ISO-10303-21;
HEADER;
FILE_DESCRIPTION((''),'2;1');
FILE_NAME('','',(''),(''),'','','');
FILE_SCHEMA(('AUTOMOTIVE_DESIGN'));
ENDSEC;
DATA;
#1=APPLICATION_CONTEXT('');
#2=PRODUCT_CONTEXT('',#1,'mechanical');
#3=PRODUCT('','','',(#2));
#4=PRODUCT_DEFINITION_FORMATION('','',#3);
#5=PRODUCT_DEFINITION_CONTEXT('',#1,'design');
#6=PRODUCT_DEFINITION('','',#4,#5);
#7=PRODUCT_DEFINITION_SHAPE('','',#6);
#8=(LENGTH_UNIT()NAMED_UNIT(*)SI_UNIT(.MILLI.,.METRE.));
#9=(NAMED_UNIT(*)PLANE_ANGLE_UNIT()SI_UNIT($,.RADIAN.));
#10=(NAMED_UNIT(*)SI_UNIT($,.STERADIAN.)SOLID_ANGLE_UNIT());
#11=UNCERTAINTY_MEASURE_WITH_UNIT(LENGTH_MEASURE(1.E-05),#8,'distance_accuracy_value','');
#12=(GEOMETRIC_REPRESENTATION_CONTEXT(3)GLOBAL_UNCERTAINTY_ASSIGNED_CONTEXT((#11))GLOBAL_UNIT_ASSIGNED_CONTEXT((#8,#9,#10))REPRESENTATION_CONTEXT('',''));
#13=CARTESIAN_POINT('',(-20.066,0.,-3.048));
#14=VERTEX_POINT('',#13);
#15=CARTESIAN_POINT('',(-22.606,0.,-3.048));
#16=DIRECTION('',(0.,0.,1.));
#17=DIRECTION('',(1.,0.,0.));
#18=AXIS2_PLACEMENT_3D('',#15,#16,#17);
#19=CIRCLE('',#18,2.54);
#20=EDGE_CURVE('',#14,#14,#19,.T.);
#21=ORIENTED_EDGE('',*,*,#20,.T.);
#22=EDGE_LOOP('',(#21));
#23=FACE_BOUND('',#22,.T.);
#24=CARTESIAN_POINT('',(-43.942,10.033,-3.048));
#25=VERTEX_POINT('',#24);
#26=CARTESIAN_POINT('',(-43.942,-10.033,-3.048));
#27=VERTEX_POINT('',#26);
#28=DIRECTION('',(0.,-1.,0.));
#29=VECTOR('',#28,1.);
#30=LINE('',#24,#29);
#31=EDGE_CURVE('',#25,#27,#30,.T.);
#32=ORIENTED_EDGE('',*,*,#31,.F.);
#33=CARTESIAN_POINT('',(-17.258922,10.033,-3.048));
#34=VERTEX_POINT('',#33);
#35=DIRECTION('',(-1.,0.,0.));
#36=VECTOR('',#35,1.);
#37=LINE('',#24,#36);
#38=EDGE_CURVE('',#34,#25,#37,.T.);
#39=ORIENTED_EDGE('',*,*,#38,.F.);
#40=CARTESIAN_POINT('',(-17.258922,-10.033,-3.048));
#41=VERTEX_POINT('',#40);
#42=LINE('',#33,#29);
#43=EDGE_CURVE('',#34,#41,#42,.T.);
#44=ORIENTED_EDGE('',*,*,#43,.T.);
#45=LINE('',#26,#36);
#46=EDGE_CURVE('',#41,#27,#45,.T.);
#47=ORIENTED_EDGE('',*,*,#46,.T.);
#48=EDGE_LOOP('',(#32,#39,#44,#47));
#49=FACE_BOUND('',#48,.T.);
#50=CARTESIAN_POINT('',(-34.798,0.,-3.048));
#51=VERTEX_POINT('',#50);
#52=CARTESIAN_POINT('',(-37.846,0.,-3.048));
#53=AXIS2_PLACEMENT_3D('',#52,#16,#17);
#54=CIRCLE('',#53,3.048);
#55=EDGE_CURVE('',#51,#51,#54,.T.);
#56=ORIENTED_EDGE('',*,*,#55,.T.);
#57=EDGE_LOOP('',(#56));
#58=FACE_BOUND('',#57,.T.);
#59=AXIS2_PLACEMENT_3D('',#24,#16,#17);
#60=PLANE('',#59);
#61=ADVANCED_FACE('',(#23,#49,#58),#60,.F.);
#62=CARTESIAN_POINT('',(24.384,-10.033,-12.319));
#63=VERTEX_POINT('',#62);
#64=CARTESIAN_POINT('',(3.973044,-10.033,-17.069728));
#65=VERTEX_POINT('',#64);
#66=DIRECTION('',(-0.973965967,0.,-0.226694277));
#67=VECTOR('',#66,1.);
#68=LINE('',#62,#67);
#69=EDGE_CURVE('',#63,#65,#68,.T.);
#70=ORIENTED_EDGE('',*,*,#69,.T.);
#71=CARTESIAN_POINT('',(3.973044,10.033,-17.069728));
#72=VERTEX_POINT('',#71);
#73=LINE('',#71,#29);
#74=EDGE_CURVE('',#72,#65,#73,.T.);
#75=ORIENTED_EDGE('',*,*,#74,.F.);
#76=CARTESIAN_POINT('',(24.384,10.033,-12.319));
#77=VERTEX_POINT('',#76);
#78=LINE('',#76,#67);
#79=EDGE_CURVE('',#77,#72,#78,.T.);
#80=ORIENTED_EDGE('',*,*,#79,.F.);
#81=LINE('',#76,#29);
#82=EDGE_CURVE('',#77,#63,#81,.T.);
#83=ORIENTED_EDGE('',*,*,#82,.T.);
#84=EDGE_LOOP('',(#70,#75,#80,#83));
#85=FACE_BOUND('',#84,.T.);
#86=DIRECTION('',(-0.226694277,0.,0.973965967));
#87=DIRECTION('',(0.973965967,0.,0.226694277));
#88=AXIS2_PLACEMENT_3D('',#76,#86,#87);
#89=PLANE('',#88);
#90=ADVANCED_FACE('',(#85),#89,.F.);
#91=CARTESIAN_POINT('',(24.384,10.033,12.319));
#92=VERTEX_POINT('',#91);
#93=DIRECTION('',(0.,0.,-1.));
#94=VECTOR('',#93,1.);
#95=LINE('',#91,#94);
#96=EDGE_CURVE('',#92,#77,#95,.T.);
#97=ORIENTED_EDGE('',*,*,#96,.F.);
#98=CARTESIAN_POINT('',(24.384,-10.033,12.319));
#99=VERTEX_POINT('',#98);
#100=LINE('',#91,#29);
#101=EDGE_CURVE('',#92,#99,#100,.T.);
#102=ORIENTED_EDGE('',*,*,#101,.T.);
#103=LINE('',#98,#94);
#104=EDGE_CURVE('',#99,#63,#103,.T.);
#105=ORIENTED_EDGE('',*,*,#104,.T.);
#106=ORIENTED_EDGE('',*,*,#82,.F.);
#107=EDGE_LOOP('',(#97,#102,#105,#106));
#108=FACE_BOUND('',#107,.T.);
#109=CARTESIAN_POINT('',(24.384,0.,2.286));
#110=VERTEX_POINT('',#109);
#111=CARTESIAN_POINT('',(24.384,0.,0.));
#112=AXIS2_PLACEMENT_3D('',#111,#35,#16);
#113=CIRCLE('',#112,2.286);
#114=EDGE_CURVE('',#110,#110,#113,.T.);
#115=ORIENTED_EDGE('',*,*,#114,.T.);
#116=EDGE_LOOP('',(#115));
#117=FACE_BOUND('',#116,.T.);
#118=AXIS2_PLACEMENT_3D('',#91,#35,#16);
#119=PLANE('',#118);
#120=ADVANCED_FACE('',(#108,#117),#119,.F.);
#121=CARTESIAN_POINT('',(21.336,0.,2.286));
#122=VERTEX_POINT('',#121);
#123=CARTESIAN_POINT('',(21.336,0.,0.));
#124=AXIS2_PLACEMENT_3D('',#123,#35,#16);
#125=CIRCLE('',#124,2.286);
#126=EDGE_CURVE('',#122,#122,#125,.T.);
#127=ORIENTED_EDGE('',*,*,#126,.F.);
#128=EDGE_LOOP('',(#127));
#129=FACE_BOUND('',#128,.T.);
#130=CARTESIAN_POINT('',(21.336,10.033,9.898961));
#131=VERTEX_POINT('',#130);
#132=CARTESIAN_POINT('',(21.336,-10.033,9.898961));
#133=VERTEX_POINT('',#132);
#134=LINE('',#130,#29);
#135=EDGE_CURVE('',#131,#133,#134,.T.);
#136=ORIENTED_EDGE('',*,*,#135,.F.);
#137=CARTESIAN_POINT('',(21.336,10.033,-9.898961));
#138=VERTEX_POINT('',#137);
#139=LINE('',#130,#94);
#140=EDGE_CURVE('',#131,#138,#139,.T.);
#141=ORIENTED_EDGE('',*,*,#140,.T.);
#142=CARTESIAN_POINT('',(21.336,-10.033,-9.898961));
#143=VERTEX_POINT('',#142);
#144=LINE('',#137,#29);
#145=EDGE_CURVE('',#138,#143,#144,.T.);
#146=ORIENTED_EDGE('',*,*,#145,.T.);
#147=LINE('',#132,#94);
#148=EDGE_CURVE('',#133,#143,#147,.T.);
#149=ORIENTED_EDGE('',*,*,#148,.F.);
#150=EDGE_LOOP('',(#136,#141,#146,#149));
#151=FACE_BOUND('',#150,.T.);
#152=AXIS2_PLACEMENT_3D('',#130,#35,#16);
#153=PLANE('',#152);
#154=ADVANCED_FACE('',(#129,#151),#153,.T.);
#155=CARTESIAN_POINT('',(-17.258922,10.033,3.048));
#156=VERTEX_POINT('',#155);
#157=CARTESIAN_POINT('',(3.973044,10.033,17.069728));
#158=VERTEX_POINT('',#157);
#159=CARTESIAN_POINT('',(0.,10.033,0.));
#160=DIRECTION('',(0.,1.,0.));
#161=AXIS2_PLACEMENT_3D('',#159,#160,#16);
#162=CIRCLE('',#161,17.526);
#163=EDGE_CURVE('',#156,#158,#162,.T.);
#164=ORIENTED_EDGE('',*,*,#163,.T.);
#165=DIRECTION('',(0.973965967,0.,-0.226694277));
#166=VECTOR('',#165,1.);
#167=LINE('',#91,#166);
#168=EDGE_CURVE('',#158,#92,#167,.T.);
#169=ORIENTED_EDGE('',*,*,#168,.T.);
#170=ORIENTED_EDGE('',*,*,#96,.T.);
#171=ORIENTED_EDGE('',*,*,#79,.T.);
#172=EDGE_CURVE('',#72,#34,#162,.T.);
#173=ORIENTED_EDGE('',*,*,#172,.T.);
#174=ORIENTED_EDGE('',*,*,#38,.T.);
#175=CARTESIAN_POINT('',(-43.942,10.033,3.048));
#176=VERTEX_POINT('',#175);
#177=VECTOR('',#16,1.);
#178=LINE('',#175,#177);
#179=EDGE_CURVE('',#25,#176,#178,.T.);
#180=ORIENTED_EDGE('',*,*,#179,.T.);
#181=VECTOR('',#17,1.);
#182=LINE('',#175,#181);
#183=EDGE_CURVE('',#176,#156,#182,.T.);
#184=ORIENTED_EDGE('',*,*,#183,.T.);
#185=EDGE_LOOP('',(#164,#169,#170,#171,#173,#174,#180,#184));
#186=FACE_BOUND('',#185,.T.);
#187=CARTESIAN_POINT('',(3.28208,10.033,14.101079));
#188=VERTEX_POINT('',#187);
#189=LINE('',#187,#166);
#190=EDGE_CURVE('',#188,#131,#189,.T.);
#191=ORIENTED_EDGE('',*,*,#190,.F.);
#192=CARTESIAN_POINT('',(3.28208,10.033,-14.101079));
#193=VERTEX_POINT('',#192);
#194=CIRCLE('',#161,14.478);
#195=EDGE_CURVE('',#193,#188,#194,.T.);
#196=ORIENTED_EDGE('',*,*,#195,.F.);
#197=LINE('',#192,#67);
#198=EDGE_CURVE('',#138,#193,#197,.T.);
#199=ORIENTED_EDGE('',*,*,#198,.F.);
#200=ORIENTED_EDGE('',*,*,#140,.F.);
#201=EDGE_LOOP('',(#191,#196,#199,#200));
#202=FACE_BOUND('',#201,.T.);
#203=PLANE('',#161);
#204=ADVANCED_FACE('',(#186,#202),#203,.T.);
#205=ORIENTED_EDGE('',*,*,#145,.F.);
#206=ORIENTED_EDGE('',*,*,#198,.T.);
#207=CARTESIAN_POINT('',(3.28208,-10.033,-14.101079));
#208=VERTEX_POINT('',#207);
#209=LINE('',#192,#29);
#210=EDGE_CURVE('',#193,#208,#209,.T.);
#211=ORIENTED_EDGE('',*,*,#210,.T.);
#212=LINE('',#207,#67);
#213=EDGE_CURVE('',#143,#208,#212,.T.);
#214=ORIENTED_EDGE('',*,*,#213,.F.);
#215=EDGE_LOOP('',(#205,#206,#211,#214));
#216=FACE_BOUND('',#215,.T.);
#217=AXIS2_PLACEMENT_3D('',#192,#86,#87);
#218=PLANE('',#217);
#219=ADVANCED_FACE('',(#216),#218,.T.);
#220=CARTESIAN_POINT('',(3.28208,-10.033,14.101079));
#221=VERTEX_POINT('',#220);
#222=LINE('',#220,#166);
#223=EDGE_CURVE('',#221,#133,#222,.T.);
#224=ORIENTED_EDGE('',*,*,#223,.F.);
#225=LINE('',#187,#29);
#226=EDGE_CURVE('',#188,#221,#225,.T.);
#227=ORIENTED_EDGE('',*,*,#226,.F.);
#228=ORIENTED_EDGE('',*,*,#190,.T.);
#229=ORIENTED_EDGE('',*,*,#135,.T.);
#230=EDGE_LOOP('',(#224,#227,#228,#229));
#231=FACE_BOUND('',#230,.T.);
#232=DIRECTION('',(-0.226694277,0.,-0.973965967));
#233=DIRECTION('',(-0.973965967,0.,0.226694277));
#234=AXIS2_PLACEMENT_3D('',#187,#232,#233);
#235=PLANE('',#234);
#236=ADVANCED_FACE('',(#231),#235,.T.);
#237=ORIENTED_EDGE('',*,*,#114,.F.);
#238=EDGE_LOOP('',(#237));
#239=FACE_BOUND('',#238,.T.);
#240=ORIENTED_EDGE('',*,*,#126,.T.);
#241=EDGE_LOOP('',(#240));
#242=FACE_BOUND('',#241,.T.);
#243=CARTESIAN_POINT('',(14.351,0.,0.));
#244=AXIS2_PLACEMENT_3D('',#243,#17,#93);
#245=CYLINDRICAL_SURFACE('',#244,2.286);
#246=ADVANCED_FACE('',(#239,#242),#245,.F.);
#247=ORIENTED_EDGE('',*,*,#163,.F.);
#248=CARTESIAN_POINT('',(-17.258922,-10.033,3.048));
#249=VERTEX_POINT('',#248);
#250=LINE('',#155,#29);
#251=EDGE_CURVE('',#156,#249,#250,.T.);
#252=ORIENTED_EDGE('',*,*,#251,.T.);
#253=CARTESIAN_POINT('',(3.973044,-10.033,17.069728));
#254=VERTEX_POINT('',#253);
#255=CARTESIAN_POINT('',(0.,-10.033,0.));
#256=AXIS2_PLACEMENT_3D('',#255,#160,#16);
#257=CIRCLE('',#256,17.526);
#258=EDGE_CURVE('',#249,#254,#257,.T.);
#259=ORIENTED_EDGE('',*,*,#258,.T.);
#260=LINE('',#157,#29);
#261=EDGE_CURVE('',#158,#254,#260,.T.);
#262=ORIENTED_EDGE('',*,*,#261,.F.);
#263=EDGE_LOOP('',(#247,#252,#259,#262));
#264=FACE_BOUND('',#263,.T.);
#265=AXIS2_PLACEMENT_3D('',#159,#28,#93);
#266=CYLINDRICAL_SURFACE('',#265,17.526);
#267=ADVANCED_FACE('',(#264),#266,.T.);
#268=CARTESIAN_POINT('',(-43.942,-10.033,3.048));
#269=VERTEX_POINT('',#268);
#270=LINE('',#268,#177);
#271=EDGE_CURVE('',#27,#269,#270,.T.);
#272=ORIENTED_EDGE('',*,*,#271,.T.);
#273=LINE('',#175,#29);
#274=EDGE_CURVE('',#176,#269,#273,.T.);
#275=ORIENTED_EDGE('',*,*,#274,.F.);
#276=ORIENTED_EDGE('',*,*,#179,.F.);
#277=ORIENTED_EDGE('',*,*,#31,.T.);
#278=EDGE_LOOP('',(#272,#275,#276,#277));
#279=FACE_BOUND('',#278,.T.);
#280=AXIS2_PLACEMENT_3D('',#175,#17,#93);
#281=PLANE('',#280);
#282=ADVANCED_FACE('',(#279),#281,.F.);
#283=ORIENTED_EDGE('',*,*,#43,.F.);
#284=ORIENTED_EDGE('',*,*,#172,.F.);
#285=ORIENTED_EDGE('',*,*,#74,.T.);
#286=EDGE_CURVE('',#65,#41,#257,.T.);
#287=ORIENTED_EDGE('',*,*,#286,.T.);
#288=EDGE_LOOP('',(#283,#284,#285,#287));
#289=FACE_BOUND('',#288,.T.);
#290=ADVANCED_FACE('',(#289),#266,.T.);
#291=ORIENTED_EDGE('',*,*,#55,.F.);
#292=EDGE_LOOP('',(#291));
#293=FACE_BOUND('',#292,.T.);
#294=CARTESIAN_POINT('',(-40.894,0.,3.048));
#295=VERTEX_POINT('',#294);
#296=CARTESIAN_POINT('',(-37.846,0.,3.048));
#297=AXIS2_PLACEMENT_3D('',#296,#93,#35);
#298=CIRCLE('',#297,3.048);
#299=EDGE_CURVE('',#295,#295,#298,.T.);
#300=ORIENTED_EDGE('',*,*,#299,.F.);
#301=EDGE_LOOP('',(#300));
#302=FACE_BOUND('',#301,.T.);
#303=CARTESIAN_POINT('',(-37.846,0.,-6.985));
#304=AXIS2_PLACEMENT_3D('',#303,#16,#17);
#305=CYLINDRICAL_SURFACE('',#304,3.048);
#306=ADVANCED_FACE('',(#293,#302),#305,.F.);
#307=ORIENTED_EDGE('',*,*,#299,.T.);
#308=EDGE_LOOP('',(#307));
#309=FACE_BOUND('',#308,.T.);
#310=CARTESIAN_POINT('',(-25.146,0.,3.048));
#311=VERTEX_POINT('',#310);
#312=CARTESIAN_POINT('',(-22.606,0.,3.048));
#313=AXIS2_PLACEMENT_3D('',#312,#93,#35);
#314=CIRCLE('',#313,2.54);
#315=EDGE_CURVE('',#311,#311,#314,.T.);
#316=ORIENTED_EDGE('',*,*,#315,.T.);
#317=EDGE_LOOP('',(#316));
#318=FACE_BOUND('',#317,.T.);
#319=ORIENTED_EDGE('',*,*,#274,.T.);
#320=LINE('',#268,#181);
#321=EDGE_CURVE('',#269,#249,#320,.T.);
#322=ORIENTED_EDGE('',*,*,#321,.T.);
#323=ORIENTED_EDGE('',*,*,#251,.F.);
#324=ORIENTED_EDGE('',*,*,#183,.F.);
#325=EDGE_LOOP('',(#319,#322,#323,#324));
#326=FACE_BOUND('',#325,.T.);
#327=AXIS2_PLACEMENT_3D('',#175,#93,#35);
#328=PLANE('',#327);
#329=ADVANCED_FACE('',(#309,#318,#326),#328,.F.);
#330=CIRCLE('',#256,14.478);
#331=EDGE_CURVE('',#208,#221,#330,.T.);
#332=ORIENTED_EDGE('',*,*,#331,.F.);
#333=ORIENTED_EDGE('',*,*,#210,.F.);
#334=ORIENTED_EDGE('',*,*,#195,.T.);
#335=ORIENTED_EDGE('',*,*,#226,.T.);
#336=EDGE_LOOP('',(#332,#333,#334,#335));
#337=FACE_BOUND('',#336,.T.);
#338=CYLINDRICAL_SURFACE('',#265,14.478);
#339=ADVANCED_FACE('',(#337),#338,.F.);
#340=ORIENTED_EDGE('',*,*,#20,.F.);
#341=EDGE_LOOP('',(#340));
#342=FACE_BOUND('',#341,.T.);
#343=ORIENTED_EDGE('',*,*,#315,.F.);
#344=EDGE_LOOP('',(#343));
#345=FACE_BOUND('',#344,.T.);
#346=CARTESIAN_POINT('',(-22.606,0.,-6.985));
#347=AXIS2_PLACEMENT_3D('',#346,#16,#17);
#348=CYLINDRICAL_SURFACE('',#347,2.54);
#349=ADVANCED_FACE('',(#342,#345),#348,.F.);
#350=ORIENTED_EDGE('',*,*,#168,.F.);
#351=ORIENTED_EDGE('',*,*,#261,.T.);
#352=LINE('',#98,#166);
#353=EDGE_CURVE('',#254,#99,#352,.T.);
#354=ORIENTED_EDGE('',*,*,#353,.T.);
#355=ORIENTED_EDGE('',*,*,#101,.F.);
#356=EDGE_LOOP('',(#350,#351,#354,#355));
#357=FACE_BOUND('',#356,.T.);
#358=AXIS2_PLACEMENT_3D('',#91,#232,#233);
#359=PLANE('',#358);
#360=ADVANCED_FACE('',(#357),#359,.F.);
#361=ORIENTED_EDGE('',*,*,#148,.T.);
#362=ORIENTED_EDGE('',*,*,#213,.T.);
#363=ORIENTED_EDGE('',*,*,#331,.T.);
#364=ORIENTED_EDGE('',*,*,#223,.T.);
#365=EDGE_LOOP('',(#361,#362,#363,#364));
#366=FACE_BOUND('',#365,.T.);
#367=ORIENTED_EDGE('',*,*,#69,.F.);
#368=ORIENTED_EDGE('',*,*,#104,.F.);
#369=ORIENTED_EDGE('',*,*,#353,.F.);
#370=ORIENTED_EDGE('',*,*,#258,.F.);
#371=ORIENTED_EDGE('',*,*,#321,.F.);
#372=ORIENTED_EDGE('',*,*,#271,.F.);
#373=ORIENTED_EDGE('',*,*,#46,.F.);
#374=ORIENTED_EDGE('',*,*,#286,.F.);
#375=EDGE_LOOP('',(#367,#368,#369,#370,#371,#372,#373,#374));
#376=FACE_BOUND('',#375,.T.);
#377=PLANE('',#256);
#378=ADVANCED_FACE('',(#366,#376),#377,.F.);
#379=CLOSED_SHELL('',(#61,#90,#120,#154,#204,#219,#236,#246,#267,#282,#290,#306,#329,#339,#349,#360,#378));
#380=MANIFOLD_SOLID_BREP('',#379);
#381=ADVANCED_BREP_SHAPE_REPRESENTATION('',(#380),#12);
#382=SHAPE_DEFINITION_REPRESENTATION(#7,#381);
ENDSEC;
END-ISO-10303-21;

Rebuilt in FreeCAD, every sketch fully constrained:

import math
import FreeCAD as App
import Part
import Sketcher
from FreeCAD import Vector
Q = App.Units.Quantity

doc = App.newDocument("Part")
body = doc.addObject("PartDesign::Body", "Body")

sketch1 = body.newObject("Sketcher::SketchObject", "Sketch")
sketch1.AttachmentSupport = (doc.getObject("XZ_Plane"), [""])
sketch1.MapMode = "FlatFace"
sketch1.addGeometry([
    Part.LineSegment(Vector(24.384, 12.319, 0), Vector(24.384, -12.319, 0)),
    Part.LineSegment(Vector(24.384, -12.319, 0), Vector(3.973044, -17.069728, 0)),
    Part.ArcOfCircle(Part.Circle(Vector(0, 0, 0), Vector(0, 0, 1), 17.526), math.radians(-169.98459), math.radians(-76.897472)),
    Part.LineSegment(Vector(-17.258922, -3.048, 0), Vector(-43.942, -3.048, 0)),
    Part.LineSegment(Vector(-43.942, -3.048, 0), Vector(-43.942, 3.048, 0)),
    Part.LineSegment(Vector(-43.942, 3.048, 0), Vector(-17.258922, 3.048, 0)),
    Part.ArcOfCircle(Part.Circle(Vector(0, 0, 0), Vector(0, 0, 1), 17.526), math.radians(76.897472), math.radians(169.98459)),
    Part.LineSegment(Vector(3.973044, 17.069728, 0), Vector(24.384, 12.319, 0)),
    Part.LineSegment(Vector(21.336, -9.898961, 0), Vector(21.336, 9.898961, 0)),
    Part.LineSegment(Vector(21.336, 9.898961, 0), Vector(3.28208, 14.101079, 0)),
    Part.ArcOfCircle(Part.Circle(Vector(0, 0, 0), Vector(0, 0, 1), 14.478), math.radians(76.897472), math.radians(283.102528)),
    Part.LineSegment(Vector(3.28208, -14.101079, 0), Vector(21.336, -9.898961, 0)),
], False)
sketch1.addConstraint([
    Sketcher.Constraint("Coincident", 0, 2, 1, 1),
    Sketcher.Constraint("Tangent", 1, 2, 2, 2),
    Sketcher.Constraint("Coincident", 2, 1, 3, 1),
    Sketcher.Constraint("Coincident", 3, 2, 4, 1),
    Sketcher.Constraint("Coincident", 4, 2, 5, 1),
    Sketcher.Constraint("Coincident", 5, 2, 6, 2),
    Sketcher.Constraint("Tangent", 6, 1, 7, 1),
    Sketcher.Constraint("Coincident", 7, 2, 0, 1),
    Sketcher.Constraint("Coincident", 8, 2, 9, 1),
    Sketcher.Constraint("Tangent", 9, 2, 10, 1),
    Sketcher.Constraint("Tangent", 10, 2, 11, 1),
    Sketcher.Constraint("Coincident", 11, 2, 8, 1),
    Sketcher.Constraint("Vertical", 0),
    Sketcher.Constraint("Horizontal", 3),
    Sketcher.Constraint("Vertical", 4),
    Sketcher.Constraint("Horizontal", 5),
    Sketcher.Constraint("Vertical", 8),
    Sketcher.Constraint("Coincident", 2, 3, -1, 1),
    Sketcher.Constraint("Coincident", 6, 3, -1, 1),
    Sketcher.Constraint("Coincident", 10, 3, -1, 1),
    Sketcher.Constraint("Equal", 2, 6),
    Sketcher.Constraint("Parallel", 7, 9),
    Sketcher.Constraint("Parallel", 1, 11),
    Sketcher.Constraint("Vertical", 2, 1, 5, 2),
    Sketcher.Constraint("Vertical", 1, 2, 6, 1),
    Sketcher.Constraint("Radius", 2, Q("0.69 in")),
    Sketcher.Constraint("Radius", 10, Q("0.57 in")),
    Sketcher.Constraint("DistanceY", 0, 2, 0, 1, Q("0.97 in")),
    Sketcher.Constraint("DistanceY", 4, 1, 4, 2, Q("0.24 in")),
    Sketcher.Constraint("DistanceX", -1, 1, 0, 2, Q("0.96 in")),
    Sketcher.Constraint("DistanceX", 3, 2, -1, 1, Q("1.73 in")),
    Sketcher.Constraint("DistanceX", -1, 1, 8, 2, Q("0.84 in")),
])
pad1 = body.newObject("PartDesign::Pad", "Pad")
pad1.Profile = sketch1
pad1.Length = Q("0.79 in")
pad1.Midplane = True

sketch2 = body.newObject("Sketcher::SketchObject", "Sketch001")
sketch2.AttachmentSupport = (doc.getObject("XY_Plane"), [""])
sketch2.MapMode = "FlatFace"
sketch2.AttachmentOffset = App.Placement(Vector(0, 0, 0.12 * 25.4), App.Rotation())
sketch2.addGeometry([
    Part.Circle(Vector(-37.846, 0, 0), Vector(0, 0, 1), 3.048),
    Part.Circle(Vector(-22.606, 0, 0), Vector(0, 0, 1), 2.54),
], False)
sketch2.addConstraint([
    Sketcher.Constraint("PointOnObject", 0, 3, -1),
    Sketcher.Constraint("PointOnObject", 1, 3, -1),
    Sketcher.Constraint("Diameter", 1, Q("0.2 in")),
    Sketcher.Constraint("Diameter", 0, Q("0.24 in")),
    Sketcher.Constraint("DistanceX", 0, 3, 1, 3, Q("0.6 in")),
    Sketcher.Constraint("DistanceX", 0, 3, -1, 1, Q("1.49 in")),
])
pocket1 = body.newObject("PartDesign::Pocket", "Pocket")
pocket1.Profile = sketch2
pocket1.Length = Q("0.79 in")
pocket1.Midplane = True

sketch3 = body.newObject("Sketcher::SketchObject", "Sketch002")
sketch3.AttachmentSupport = (doc.getObject("YZ_Plane"), [""])
sketch3.MapMode = "FlatFace"
sketch3.AttachmentOffset = App.Placement(Vector(0, 0, 0.96 * 25.4), App.Rotation())
sketch3.addGeometry(Part.Circle(Vector(0, 0, 0), Vector(0, 0, 1), 2.286), False)
sketch3.addConstraint([
    Sketcher.Constraint("Coincident", 0, 3, -1, 1),
    Sketcher.Constraint("Diameter", 0, Q("0.18 in")),
])
pocket2 = body.newObject("PartDesign::Pocket", "Pocket001")
pocket2.Profile = sketch3
pocket2.Length = Q("0.79 in")
pocket2.Midplane = True

doc.recompute()
